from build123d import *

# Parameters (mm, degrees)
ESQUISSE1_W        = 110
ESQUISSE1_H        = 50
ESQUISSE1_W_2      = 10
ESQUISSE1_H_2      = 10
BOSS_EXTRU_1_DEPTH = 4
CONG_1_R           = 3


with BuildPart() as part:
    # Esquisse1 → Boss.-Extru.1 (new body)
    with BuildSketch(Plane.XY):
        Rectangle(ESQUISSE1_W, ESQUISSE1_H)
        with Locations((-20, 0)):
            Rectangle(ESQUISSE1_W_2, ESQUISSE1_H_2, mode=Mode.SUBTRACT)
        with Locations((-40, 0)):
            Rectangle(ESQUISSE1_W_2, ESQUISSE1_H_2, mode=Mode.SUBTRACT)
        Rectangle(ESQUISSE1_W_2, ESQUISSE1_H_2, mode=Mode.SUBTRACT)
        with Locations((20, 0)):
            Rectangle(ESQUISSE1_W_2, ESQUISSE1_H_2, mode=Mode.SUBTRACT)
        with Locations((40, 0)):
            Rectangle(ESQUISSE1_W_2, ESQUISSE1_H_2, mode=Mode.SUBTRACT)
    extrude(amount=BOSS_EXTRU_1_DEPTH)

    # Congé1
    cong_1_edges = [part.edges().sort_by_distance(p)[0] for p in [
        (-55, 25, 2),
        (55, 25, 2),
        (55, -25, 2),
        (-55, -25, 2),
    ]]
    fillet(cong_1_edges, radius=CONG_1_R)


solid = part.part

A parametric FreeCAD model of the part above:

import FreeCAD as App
import Part
import Sketcher

V = App.Vector
Q = App.Units.Quantity


def edges_at(feature, points):
    """Names of the edges that pass closest to the given points."""
    edges = feature.Shape.Edges
    near = lambda p: min(range(len(edges)), key=lambda i: edges[i].distToShape(Part.Vertex(*p))[0])
    return sorted({f"Edge{near(p) + 1}" for p in points})


def add_polygon(sketch, points):
    """Adds a closed chain of lines whose ends are joined by coincident constraints."""
    first, n = sketch.GeometryCount, len(points)
    for a, b in zip(points, points[1:] + points[:1]):
        sketch.addGeometry(Part.LineSegment(App.Vector(*a, 0), App.Vector(*b, 0)), False)
    for i in range(n):
        sketch.addConstraint(Sketcher.Constraint("Coincident", first + i, 2, first + (i + 1) % n, 1))

doc = App.newDocument("Part")
body = doc.addObject("PartDesign::Body", "Body")

# Sketch on XY plane
sketch1 = doc.addObject("Sketcher::SketchObject", "Sketch")
body.addObject(sketch1)
sketch1.AttachmentSupport = (doc.XY_Plane, [""])
sketch1.MapMode = "FlatFace"
add_polygon(sketch1, [(-55, 25), (-55, -25), (55, -25), (55, 25)])  # lines 0-3
add_polygon(sketch1, [(-35, -5), (-45, -5), (-45, 5), (-35, 5)])  # lines 4-7
add_polygon(sketch1, [(-15, -5), (-25, -5), (-25, 5), (-15, 5)])  # lines 8-11
add_polygon(sketch1, [(5, -5), (-5, -5), (-5, 5), (5, 5)])  # lines 12-15
add_polygon(sketch1, [(25, -5), (15, -5), (15, 5), (25, 5)])  # lines 16-19
add_polygon(sketch1, [(45, -5), (35, -5), (35, 5), (45, 5)])  # lines 20-23
sketch1.addConstraint([
    Sketcher.Constraint("Vertical", 0),
    Sketcher.Constraint("Horizontal", 1),
    Sketcher.Constraint("Vertical", 2),
    Sketcher.Constraint("Horizontal", 3),
    Sketcher.Constraint("Horizontal", 4),
    Sketcher.Constraint("Vertical", 5),
    Sketcher.Constraint("Horizontal", 6),
    Sketcher.Constraint("Vertical", 7),
    Sketcher.Constraint("Horizontal", 8),
    Sketcher.Constraint("Vertical", 9),
    Sketcher.Constraint("Horizontal", 10),
    Sketcher.Constraint("Vertical", 11),
    Sketcher.Constraint("Horizontal", 12),
    Sketcher.Constraint("Vertical", 13),
    Sketcher.Constraint("Horizontal", 14),
    Sketcher.Constraint("Vertical", 15),
    Sketcher.Constraint("Horizontal", 16),
    Sketcher.Constraint("Vertical", 17),
    Sketcher.Constraint("Horizontal", 18),
    Sketcher.Constraint("Vertical", 19),
    Sketcher.Constraint("Horizontal", 20),
    Sketcher.Constraint("Vertical", 21),
    Sketcher.Constraint("Horizontal", 22),
    Sketcher.Constraint("Vertical", 23),
    Sketcher.Constraint("Symmetric", 0, 2, 2, 2, -1, 1),
    Sketcher.Constraint("Symmetric", 12, 2, 14, 2, -1, 1),
    Sketcher.Constraint("Symmetric", 10, 2, 16, 2, -1, 1),
    Sketcher.Constraint("Symmetric", 8, 2, 18, 2, -1, 1),
    Sketcher.Constraint("Symmetric", 6, 2, 20, 2, -1, 1),
    Sketcher.Constraint("Symmetric", 4, 2, 22, 2, -1, 1),
    Sketcher.Constraint("Horizontal", 7, 2, 8, 2),
    Sketcher.Constraint("Horizontal", 6, 2, 9, 2),
    Sketcher.Constraint("Horizontal", 11, 2, 12, 2),
    Sketcher.Constraint("Horizontal", 10, 2, 13, 2),
    Sketcher.Constraint("Equal", 6, 8),
    Sketcher.Constraint("Equal", 10, 12),
    Sketcher.Constraint("Equal", 22, 5),
    Sketcher.Constraint("DistanceX", 1, 1, 1, 2, Q("110 mm")),
    Sketcher.Constraint("DistanceX", 4, 2, 4, 1, Q("10 mm")),
    Sketcher.Constraint("DistanceY", 0, 2, 0, 1, Q("50 mm")),
    Sketcher.Constraint("DistanceX", 4, 2, -1, 1, Q("45 mm")),
    Sketcher.Constraint("DistanceX", 8, 2, -1, 1, Q("25 mm")),
])
pad1 = doc.addObject("PartDesign::Pad", "Pad")
body.addObject(pad1)
pad1.Profile = sketch1
pad1.Length = 4
doc.recompute()

fillet = doc.addObject("PartDesign::Fillet", "Fillet")
body.addObject(fillet)
fillet.Base = (pad1, edges_at(pad1, [
    (-55, 25, 2),
    (55, 25, 2),
    (55, -25, 2),
    (-55, -25, 2),
]))
fillet.Radius = 3

doc.recompute()
